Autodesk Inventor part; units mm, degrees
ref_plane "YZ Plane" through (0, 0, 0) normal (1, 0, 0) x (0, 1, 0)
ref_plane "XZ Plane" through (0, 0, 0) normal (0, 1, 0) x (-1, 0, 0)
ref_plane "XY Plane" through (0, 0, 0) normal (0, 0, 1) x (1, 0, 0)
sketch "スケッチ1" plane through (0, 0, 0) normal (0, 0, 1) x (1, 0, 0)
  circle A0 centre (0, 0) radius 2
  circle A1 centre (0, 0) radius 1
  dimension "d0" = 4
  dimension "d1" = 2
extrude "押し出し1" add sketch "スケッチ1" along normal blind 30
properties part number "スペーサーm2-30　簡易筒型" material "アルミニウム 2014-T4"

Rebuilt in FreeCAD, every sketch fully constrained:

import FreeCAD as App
import Part
import Sketcher

V = App.Vector
Q = App.Units.Quantity

doc = App.newDocument("Part")
body = doc.addObject("PartDesign::Body", "Body")

# Sketch on XY plane
sketch1 = body.newObject("Sketcher::SketchObject", "Sketch")
sketch1.AttachmentSupport = (doc.getObject("XY_Plane"), [""])
sketch1.MapMode = "FlatFace"
sketch1.addGeometry([
    Part.Circle(V(0, 0, 0), V(0, 0, 1), 2),
    Part.Circle(V(0, 0, 0), V(0, 0, 1), 1),
], False)
sketch1.addConstraint([
    Sketcher.Constraint("Coincident", 0, 3, -1, 1),
    Sketcher.Constraint("Coincident", 1, 3, -1, 1),
    Sketcher.Constraint("Diameter", 0, Q("4 mm")),
    Sketcher.Constraint("Diameter", 1, Q("2 mm")),
])
pad1 = body.newObject("PartDesign::Pad", "Pad")
pad1.Profile = sketch1
pad1.Length = 30

doc.recompute()
